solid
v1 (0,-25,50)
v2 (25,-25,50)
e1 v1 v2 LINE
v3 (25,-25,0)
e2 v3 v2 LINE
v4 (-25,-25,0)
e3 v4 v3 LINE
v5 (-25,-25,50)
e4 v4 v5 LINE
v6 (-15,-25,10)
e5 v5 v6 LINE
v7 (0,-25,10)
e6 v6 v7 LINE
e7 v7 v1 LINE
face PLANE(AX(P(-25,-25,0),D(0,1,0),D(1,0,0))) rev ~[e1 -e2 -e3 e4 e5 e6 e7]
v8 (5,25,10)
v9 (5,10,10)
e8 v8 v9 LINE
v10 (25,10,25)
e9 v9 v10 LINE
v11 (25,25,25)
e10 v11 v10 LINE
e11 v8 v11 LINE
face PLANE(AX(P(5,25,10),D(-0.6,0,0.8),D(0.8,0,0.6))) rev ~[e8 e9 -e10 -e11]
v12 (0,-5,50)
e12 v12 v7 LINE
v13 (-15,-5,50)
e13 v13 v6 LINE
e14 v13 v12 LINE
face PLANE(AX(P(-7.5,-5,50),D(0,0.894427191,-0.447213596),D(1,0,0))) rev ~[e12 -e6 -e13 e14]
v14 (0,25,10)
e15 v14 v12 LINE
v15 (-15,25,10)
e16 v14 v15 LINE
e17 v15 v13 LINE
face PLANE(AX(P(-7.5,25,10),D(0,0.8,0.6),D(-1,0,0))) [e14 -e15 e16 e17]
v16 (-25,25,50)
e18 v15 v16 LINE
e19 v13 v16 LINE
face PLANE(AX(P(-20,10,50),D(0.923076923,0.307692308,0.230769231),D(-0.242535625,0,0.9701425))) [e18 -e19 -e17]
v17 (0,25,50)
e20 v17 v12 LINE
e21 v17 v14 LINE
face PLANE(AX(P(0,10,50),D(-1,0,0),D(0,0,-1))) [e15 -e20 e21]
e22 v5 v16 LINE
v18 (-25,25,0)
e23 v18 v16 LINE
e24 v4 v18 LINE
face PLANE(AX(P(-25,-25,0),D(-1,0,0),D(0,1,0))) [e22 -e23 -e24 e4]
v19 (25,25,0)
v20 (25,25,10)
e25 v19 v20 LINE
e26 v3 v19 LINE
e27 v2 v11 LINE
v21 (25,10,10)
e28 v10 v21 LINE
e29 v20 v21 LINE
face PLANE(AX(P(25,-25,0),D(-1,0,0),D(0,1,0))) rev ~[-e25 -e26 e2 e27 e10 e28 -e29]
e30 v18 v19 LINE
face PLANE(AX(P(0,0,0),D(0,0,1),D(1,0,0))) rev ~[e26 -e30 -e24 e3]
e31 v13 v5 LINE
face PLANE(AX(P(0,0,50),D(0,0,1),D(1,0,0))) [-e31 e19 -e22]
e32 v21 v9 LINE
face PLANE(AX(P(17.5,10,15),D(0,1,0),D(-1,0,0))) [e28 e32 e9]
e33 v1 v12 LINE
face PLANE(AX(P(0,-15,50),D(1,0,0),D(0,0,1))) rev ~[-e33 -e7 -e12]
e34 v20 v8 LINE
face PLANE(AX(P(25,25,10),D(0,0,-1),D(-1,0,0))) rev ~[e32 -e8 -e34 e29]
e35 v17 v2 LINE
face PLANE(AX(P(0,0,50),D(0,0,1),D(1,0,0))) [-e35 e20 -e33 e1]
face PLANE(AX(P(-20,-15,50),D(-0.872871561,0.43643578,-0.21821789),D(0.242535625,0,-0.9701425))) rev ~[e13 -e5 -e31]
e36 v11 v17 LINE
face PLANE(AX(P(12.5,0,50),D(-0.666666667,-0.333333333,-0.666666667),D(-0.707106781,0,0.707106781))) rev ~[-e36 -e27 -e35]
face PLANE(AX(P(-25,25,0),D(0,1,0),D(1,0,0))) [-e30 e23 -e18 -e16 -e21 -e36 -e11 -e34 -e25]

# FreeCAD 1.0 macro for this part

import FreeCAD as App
import Part
import Sketcher


def add_polygon(sketch, points):
    """Adds a closed chain of lines whose ends are joined by coincident constraints."""
    first, n = sketch.GeometryCount, len(points)
    for a, b in zip(points, points[1:] + points[:1]):
        sketch.addGeometry(Part.LineSegment(App.Vector(*a, 0), App.Vector(*b, 0)), False)
    for i in range(n):
        sketch.addConstraint(Sketcher.Constraint("Coincident", first + i, 2, first + (i + 1) % n, 1))

doc = App.newDocument("Part")
body = doc.addObject("PartDesign::Body", "Body")

# Sketch on XY plane
sketch1 = body.newObject("Sketcher::SketchObject", "Sketch")
sketch1.AttachmentSupport = (doc.getObject("XY_Plane"), [""])
sketch1.MapMode = "FlatFace"
add_polygon(sketch1, [(-25, 25), (-25, -25), (25, -25), (25, 25)])  # lines 0-3
sketch1.addConstraint(Sketcher.Constraint("Vertical", 0))
sketch1.addConstraint(Sketcher.Constraint("Horizontal", 1))
sketch1.addConstraint(Sketcher.Constraint("Vertical", 2))
sketch1.addConstraint(Sketcher.Constraint("Horizontal", 3))
sketch1.addConstraint(Sketcher.Constraint("Symmetric", 0, 2, 2, 2, -1, 1))
sketch1.addConstraint(Sketcher.Constraint("Equal", 3, 0))
sketch1.addConstraint(Sketcher.Constraint("DistanceX", 1, 1, 1, 2, 50.0))
pad1 = body.newObject("PartDesign::Pad", "Pad")
pad1.Profile = sketch1
pad1.Length = 50

# Sketch on XZ plane
sketch2 = body.newObject("Sketcher::SketchObject", "Sketch001")
sketch2.AttachmentSupport = (doc.getObject("XZ_Plane"), [""])
sketch2.MapMode = "FlatFace"
sketch2.AttachmentOffset = App.Placement(App.Vector(0, 0, 25), App.Rotation())
add_polygon(sketch2, [(-15, 50), (-15, 10), (0, 10), (0, 50)])  # lines 0-3
sketch2.addConstraint(Sketcher.Constraint("Vertical", 0))
sketch2.addConstraint(Sketcher.Constraint("Horizontal", 1))
sketch2.addConstraint(Sketcher.Constraint("Vertical", 2))
sketch2.addConstraint(Sketcher.Constraint("Horizontal", 3))
sketch2.addConstraint(Sketcher.Constraint("PointOnObject", 1, 2, -2))
sketch2.addConstraint(Sketcher.Constraint("DistanceX", 1, 1, 1, 2, 15.0))
sketch2.addConstraint(Sketcher.Constraint("DistanceY", 0, 2, 0, 1, 40.0))
sketch2.addConstraint(Sketcher.Constraint("DistanceY", -1, 1, 0, 2, 10.0))

# Sketch on an angled plane
sketch3 = body.newObject("Sketcher::SketchObject", "Sketch002")
sketch3.Placement = App.Placement(App.Vector(0, -24, 12), App.Rotation(App.Vector(0, 0.447213595, 0.894427191), App.Vector(1, 0, 0), App.Vector(0, 0.894427191, -0.447213595), "ZXY"))
sketch3.addGeometry(Part.LineSegment(App.Vector(42, -25, 0), App.Vector(-2, -25, 0)), False)
sketch3.addConstraint(Sketcher.Constraint("Horizontal", 0))
sketch3.addConstraint(Sketcher.Constraint("DistanceY", 0, 1, -1, 1, 25.0))
sketch3.addConstraint(Sketcher.Constraint("DistanceX", 0, 2, 0, 1, 44.72136))
sketch3.addConstraint(Sketcher.Constraint("DistanceX", -1, 1, 0, 1, 42.485292))
doc.recompute()

subtractivepipe = body.newObject("PartDesign::SubtractivePipe", "SubtractivePipe")
subtractivepipe.Profile = sketch2
subtractivepipe.Spine = (sketch3, ["Edge1"])

# Sketch on XZ plane
sketch4 = body.newObject("Sketcher::SketchObject", "Sketch003")
sketch4.AttachmentSupport = (doc.getObject("XZ_Plane"), [""])
sketch4.MapMode = "FlatFace"
sketch4.AttachmentOffset = App.Placement(App.Vector(0, 0, -25), App.Rotation())
add_polygon(sketch4, [(0, 50), (0, 10), (-15, 10), (-15, 50)])  # lines 0-3
sketch4.addConstraint(Sketcher.Constraint("Vertical", 0))
sketch4.addConstraint(Sketcher.Constraint("Horizontal", 1))
sketch4.addConstraint(Sketcher.Constraint("Vertical", 2))
sketch4.addConstraint(Sketcher.Constraint("Horizontal", 3))
sketch4.addConstraint(Sketcher.Constraint("PointOnObject", 0, 2, -2))
sketch4.addConstraint(Sketcher.Constraint("DistanceX", 1, 2, 1, 1, 15.0))
sketch4.addConstraint(Sketcher.Constraint("DistanceY", 0, 2, 0, 1, 40.0))
sketch4.addConstraint(Sketcher.Constraint("DistanceY", -1, 1, 0, 2, 10.0))

# Sketch on an angled plane
sketch5 = body.newObject("Sketcher::SketchObject", "Sketch004")
sketch5.Placement = App.Placement(App.Vector(0, 20.8, 15.6), App.Rotation(App.Vector(0, -0.6, 0.8), App.Vector(1, 0, 0), App.Vector(0, 0.8, 0.6), "ZXY"))
sketch5.addGeometry(Part.LineSegment(App.Vector(-7, -25, 0), App.Vector(43, -25, 0)), False)
sketch5.addConstraint(Sketcher.Constraint("Horizontal", 0))
sketch5.addConstraint(Sketcher.Constraint("DistanceX", 0, 1, 0, 2, 50.0))
sketch5.addConstraint(Sketcher.Constraint("DistanceX", 0, 1, -1, 1, 7.0))
sketch5.addConstraint(Sketcher.Constraint("DistanceY", 0, 1, -1, 1, 25.0))
doc.recompute()

subtractivepipe2 = body.newObject("PartDesign::SubtractivePipe", "SubtractivePipe001")
subtractivepipe2.Profile = sketch4
subtractivepipe2.Spine = (sketch5, ["Edge1"])

# Sketch on XZ plane
sketch6 = body.newObject("Sketcher::SketchObject", "Sketch005")
sketch6.AttachmentSupport = (doc.getObject("XZ_Plane"), [""])
sketch6.MapMode = "FlatFace"
sketch6.AttachmentOffset = App.Placement(App.Vector(0, 0, -25), App.Rotation())
add_polygon(sketch6, [(5, 10), (25, 25), (25, 10)])  # lines 0-2
sketch6.addConstraint(Sketcher.Constraint("Vertical", 1))
sketch6.addConstraint(Sketcher.Constraint("Horizontal", 2))
sketch6.addConstraint(Sketcher.Constraint("DistanceX", 2, 2, 2, 1, 20.0))
sketch6.addConstraint(Sketcher.Constraint("DistanceY", 1, 2, 1, 1, 15.0))
sketch6.addConstraint(Sketcher.Constraint("DistanceX", -1, 1, 0, 2, 25.0))
sketch6.addConstraint(Sketcher.Constraint("DistanceY", -1, 1, 0, 2, 25.0))
pocket1 = body.newObject("PartDesign::Pocket", "Pocket")
pocket1.Profile = sketch6
pocket1.Length = 15
pocket1.Reversed = True

# Sketch on XZ plane
sketch7 = body.newObject("Sketcher::SketchObject", "Sketch006")
sketch7.AttachmentSupport = (doc.getObject("XZ_Plane"), [""])
sketch7.MapMode = "FlatFace"
sketch7.AttachmentOffset = App.Placement(App.Vector(0, 0, 25), App.Rotation())
add_polygon(sketch7, [(-15, 50), (-25, 50), (-15, 10)])  # lines 0-2
sketch7.addConstraint(Sketcher.Constraint("Horizontal", 0))
sketch7.addConstraint(Sketcher.Constraint("Vertical", 2))
sketch7.addConstraint(Sketcher.Constraint("DistanceX", 0, 2, 0, 1, 10.0))
sketch7.addConstraint(Sketcher.Constraint("DistanceY", 2, 1, 2, 2, 40.0))
sketch7.addConstraint(Sketcher.Constraint("DistanceX", 0, 2, -1, 1, 25.0))
sketch7.addConstraint(Sketcher.Constraint("DistanceY", -1, 1, 0, 2, 50.0))

# Sketch on an angled plane
sketch8 = body.newObject("Sketcher::SketchObject", "Sketch007")
sketch8.Placement = App.Placement(App.Vector(0, -24, 12), App.Rotation(App.Vector(0, 0.447213595, 0.894427191), App.Vector(1, 0, 0), App.Vector(0, 0.894427191, -0.447213595), "ZXY"))
sketch8.addGeometry(Part.LineSegment(App.Vector(42, -25, 0), App.Vector(-2, -25, 0)), False)
sketch8.addConstraint(Sketcher.Constraint("Horizontal", 0))
sketch8.addConstraint(Sketcher.Constraint("DistanceY", 0, 1, -1, 1, 25.0))
sketch8.addConstraint(Sketcher.Constraint("DistanceX", 0, 2, 0, 1, 44.72136))
sketch8.addConstraint(Sketcher.Constraint("DistanceX", -1, 1, 0, 1, 42.485292))
doc.recompute()

subtractivepipe3 = body.newObject("PartDesign::SubtractivePipe", "SubtractivePipe002")
subtractivepipe3.Profile = sketch7
subtractivepipe3.Spine = (sketch8, ["Edge1"])

# Sketch on XZ plane
sketch9 = body.newObject("Sketcher::SketchObject", "Sketch008")
sketch9.AttachmentSupport = (doc.getObject("XZ_Plane"), [""])
sketch9.MapMode = "FlatFace"
sketch9.AttachmentOffset = App.Placement(App.Vector(0, 0, -25), App.Rotation())
add_polygon(sketch9, [(-25, 50), (-15, 50), (-15, 10)])  # lines 0-2
sketch9.addConstraint(Sketcher.Constraint("Horizontal", 0))
sketch9.addConstraint(Sketcher.Constraint("Vertical", 1))
sketch9.addConstraint(Sketcher.Constraint("DistanceX", 0, 1, 0, 2, 10.0))
sketch9.addConstraint(Sketcher.Constraint("DistanceY", 1, 2, 1, 1, 40.0))
sketch9.addConstraint(Sketcher.Constraint("DistanceX", 0, 2, -1, 1, 15.0))
sketch9.addConstraint(Sketcher.Constraint("DistanceY", -1, 1, 0, 2, 50.0))

# Sketch on an angled plane
sketch10 = body.newObject("Sketcher::SketchObject", "Sketch009")
sketch10.Placement = App.Placement(App.Vector(0, 20.8, 15.6), App.Rotation(App.Vector(0, -0.6, 0.8), App.Vector(1, 0, 0), App.Vector(0, 0.8, 0.6), "ZXY"))
sketch10.addGeometry(Part.LineSegment(App.Vector(-7, -25, 0), App.Vector(43, -25, 0)), False)
sketch10.addConstraint(Sketcher.Constraint("Horizontal", 0))
sketch10.addConstraint(Sketcher.Constraint("DistanceX", 0, 1, 0, 2, 50.0))
sketch10.addConstraint(Sketcher.Constraint("DistanceX", 0, 1, -1, 1, 7.0))
sketch10.addConstraint(Sketcher.Constraint("DistanceY", 0, 1, -1, 1, 25.0))
doc.recompute()

subtractivepipe4 = body.newObject("PartDesign::SubtractivePipe", "SubtractivePipe003")
subtractivepipe4.Profile = sketch9
subtractivepipe4.Spine = (sketch10, ["Edge1"])

# Sketch on XZ plane
sketch11 = body.newObject("Sketcher::SketchObject", "Sketch010")
sketch11.AttachmentSupport = (doc.getObject("XZ_Plane"), [""])
sketch11.MapMode = "FlatFace"
sketch11.AttachmentOffset = App.Placement(App.Vector(0, 0, -25), App.Rotation())
add_polygon(sketch11, [(0, 50), (25, 50), (25, 25)])  # lines 0-2
sketch11.addConstraint(Sketcher.Constraint("Horizontal", 0))
sketch11.addConstraint(Sketcher.Constraint("Vertical", 1))
sketch11.addConstraint(Sketcher.Constraint("PointOnObject", 2, 2, -2))
sketch11.addConstraint(Sketcher.Constraint("Equal", 0, 1))
sketch11.addConstraint(Sketcher.Constraint("DistanceX", 0, 1, 0, 2, 25.0))
sketch11.addConstraint(Sketcher.Constraint("DistanceY", -1, 1, 0, 2, 50.0))

# Sketch on an angled plane
sketch12 = body.newObject("Sketcher::SketchObject", "Sketch011")
sketch12.Placement = App.Placement(App.Vector(0, 15, 30), App.Rotation(App.Vector(0, -0.894427191, 0.447213595), App.Vector(1, 0, 0), App.Vector(0, 0.447213595, 0.894427191), "ZXY"))
sketch12.addGeometry(Part.LineSegment(App.Vector(45, 25, 0), App.Vector(-11, 25, 0)), False)
sketch12.addConstraint(Sketcher.Constraint("Horizontal", 0))
sketch12.addConstraint(Sketcher.Constraint("DistanceY", -1, 1, 0, 1, 25.0))
sketch12.addConstraint(Sketcher.Constraint("DistanceX", 0, 2, 0, 1, 55.901699))
sketch12.addConstraint(Sketcher.Constraint("DistanceX", -1, 1, 0, 1, 44.72136))
doc.recompute()

subtractivepipe5 = body.newObject("PartDesign::SubtractivePipe", "SubtractivePipe004")
subtractivepipe5.Profile = sketch11
subtractivepipe5.Spine = (sketch12, ["Edge1"])

doc.recompute()
